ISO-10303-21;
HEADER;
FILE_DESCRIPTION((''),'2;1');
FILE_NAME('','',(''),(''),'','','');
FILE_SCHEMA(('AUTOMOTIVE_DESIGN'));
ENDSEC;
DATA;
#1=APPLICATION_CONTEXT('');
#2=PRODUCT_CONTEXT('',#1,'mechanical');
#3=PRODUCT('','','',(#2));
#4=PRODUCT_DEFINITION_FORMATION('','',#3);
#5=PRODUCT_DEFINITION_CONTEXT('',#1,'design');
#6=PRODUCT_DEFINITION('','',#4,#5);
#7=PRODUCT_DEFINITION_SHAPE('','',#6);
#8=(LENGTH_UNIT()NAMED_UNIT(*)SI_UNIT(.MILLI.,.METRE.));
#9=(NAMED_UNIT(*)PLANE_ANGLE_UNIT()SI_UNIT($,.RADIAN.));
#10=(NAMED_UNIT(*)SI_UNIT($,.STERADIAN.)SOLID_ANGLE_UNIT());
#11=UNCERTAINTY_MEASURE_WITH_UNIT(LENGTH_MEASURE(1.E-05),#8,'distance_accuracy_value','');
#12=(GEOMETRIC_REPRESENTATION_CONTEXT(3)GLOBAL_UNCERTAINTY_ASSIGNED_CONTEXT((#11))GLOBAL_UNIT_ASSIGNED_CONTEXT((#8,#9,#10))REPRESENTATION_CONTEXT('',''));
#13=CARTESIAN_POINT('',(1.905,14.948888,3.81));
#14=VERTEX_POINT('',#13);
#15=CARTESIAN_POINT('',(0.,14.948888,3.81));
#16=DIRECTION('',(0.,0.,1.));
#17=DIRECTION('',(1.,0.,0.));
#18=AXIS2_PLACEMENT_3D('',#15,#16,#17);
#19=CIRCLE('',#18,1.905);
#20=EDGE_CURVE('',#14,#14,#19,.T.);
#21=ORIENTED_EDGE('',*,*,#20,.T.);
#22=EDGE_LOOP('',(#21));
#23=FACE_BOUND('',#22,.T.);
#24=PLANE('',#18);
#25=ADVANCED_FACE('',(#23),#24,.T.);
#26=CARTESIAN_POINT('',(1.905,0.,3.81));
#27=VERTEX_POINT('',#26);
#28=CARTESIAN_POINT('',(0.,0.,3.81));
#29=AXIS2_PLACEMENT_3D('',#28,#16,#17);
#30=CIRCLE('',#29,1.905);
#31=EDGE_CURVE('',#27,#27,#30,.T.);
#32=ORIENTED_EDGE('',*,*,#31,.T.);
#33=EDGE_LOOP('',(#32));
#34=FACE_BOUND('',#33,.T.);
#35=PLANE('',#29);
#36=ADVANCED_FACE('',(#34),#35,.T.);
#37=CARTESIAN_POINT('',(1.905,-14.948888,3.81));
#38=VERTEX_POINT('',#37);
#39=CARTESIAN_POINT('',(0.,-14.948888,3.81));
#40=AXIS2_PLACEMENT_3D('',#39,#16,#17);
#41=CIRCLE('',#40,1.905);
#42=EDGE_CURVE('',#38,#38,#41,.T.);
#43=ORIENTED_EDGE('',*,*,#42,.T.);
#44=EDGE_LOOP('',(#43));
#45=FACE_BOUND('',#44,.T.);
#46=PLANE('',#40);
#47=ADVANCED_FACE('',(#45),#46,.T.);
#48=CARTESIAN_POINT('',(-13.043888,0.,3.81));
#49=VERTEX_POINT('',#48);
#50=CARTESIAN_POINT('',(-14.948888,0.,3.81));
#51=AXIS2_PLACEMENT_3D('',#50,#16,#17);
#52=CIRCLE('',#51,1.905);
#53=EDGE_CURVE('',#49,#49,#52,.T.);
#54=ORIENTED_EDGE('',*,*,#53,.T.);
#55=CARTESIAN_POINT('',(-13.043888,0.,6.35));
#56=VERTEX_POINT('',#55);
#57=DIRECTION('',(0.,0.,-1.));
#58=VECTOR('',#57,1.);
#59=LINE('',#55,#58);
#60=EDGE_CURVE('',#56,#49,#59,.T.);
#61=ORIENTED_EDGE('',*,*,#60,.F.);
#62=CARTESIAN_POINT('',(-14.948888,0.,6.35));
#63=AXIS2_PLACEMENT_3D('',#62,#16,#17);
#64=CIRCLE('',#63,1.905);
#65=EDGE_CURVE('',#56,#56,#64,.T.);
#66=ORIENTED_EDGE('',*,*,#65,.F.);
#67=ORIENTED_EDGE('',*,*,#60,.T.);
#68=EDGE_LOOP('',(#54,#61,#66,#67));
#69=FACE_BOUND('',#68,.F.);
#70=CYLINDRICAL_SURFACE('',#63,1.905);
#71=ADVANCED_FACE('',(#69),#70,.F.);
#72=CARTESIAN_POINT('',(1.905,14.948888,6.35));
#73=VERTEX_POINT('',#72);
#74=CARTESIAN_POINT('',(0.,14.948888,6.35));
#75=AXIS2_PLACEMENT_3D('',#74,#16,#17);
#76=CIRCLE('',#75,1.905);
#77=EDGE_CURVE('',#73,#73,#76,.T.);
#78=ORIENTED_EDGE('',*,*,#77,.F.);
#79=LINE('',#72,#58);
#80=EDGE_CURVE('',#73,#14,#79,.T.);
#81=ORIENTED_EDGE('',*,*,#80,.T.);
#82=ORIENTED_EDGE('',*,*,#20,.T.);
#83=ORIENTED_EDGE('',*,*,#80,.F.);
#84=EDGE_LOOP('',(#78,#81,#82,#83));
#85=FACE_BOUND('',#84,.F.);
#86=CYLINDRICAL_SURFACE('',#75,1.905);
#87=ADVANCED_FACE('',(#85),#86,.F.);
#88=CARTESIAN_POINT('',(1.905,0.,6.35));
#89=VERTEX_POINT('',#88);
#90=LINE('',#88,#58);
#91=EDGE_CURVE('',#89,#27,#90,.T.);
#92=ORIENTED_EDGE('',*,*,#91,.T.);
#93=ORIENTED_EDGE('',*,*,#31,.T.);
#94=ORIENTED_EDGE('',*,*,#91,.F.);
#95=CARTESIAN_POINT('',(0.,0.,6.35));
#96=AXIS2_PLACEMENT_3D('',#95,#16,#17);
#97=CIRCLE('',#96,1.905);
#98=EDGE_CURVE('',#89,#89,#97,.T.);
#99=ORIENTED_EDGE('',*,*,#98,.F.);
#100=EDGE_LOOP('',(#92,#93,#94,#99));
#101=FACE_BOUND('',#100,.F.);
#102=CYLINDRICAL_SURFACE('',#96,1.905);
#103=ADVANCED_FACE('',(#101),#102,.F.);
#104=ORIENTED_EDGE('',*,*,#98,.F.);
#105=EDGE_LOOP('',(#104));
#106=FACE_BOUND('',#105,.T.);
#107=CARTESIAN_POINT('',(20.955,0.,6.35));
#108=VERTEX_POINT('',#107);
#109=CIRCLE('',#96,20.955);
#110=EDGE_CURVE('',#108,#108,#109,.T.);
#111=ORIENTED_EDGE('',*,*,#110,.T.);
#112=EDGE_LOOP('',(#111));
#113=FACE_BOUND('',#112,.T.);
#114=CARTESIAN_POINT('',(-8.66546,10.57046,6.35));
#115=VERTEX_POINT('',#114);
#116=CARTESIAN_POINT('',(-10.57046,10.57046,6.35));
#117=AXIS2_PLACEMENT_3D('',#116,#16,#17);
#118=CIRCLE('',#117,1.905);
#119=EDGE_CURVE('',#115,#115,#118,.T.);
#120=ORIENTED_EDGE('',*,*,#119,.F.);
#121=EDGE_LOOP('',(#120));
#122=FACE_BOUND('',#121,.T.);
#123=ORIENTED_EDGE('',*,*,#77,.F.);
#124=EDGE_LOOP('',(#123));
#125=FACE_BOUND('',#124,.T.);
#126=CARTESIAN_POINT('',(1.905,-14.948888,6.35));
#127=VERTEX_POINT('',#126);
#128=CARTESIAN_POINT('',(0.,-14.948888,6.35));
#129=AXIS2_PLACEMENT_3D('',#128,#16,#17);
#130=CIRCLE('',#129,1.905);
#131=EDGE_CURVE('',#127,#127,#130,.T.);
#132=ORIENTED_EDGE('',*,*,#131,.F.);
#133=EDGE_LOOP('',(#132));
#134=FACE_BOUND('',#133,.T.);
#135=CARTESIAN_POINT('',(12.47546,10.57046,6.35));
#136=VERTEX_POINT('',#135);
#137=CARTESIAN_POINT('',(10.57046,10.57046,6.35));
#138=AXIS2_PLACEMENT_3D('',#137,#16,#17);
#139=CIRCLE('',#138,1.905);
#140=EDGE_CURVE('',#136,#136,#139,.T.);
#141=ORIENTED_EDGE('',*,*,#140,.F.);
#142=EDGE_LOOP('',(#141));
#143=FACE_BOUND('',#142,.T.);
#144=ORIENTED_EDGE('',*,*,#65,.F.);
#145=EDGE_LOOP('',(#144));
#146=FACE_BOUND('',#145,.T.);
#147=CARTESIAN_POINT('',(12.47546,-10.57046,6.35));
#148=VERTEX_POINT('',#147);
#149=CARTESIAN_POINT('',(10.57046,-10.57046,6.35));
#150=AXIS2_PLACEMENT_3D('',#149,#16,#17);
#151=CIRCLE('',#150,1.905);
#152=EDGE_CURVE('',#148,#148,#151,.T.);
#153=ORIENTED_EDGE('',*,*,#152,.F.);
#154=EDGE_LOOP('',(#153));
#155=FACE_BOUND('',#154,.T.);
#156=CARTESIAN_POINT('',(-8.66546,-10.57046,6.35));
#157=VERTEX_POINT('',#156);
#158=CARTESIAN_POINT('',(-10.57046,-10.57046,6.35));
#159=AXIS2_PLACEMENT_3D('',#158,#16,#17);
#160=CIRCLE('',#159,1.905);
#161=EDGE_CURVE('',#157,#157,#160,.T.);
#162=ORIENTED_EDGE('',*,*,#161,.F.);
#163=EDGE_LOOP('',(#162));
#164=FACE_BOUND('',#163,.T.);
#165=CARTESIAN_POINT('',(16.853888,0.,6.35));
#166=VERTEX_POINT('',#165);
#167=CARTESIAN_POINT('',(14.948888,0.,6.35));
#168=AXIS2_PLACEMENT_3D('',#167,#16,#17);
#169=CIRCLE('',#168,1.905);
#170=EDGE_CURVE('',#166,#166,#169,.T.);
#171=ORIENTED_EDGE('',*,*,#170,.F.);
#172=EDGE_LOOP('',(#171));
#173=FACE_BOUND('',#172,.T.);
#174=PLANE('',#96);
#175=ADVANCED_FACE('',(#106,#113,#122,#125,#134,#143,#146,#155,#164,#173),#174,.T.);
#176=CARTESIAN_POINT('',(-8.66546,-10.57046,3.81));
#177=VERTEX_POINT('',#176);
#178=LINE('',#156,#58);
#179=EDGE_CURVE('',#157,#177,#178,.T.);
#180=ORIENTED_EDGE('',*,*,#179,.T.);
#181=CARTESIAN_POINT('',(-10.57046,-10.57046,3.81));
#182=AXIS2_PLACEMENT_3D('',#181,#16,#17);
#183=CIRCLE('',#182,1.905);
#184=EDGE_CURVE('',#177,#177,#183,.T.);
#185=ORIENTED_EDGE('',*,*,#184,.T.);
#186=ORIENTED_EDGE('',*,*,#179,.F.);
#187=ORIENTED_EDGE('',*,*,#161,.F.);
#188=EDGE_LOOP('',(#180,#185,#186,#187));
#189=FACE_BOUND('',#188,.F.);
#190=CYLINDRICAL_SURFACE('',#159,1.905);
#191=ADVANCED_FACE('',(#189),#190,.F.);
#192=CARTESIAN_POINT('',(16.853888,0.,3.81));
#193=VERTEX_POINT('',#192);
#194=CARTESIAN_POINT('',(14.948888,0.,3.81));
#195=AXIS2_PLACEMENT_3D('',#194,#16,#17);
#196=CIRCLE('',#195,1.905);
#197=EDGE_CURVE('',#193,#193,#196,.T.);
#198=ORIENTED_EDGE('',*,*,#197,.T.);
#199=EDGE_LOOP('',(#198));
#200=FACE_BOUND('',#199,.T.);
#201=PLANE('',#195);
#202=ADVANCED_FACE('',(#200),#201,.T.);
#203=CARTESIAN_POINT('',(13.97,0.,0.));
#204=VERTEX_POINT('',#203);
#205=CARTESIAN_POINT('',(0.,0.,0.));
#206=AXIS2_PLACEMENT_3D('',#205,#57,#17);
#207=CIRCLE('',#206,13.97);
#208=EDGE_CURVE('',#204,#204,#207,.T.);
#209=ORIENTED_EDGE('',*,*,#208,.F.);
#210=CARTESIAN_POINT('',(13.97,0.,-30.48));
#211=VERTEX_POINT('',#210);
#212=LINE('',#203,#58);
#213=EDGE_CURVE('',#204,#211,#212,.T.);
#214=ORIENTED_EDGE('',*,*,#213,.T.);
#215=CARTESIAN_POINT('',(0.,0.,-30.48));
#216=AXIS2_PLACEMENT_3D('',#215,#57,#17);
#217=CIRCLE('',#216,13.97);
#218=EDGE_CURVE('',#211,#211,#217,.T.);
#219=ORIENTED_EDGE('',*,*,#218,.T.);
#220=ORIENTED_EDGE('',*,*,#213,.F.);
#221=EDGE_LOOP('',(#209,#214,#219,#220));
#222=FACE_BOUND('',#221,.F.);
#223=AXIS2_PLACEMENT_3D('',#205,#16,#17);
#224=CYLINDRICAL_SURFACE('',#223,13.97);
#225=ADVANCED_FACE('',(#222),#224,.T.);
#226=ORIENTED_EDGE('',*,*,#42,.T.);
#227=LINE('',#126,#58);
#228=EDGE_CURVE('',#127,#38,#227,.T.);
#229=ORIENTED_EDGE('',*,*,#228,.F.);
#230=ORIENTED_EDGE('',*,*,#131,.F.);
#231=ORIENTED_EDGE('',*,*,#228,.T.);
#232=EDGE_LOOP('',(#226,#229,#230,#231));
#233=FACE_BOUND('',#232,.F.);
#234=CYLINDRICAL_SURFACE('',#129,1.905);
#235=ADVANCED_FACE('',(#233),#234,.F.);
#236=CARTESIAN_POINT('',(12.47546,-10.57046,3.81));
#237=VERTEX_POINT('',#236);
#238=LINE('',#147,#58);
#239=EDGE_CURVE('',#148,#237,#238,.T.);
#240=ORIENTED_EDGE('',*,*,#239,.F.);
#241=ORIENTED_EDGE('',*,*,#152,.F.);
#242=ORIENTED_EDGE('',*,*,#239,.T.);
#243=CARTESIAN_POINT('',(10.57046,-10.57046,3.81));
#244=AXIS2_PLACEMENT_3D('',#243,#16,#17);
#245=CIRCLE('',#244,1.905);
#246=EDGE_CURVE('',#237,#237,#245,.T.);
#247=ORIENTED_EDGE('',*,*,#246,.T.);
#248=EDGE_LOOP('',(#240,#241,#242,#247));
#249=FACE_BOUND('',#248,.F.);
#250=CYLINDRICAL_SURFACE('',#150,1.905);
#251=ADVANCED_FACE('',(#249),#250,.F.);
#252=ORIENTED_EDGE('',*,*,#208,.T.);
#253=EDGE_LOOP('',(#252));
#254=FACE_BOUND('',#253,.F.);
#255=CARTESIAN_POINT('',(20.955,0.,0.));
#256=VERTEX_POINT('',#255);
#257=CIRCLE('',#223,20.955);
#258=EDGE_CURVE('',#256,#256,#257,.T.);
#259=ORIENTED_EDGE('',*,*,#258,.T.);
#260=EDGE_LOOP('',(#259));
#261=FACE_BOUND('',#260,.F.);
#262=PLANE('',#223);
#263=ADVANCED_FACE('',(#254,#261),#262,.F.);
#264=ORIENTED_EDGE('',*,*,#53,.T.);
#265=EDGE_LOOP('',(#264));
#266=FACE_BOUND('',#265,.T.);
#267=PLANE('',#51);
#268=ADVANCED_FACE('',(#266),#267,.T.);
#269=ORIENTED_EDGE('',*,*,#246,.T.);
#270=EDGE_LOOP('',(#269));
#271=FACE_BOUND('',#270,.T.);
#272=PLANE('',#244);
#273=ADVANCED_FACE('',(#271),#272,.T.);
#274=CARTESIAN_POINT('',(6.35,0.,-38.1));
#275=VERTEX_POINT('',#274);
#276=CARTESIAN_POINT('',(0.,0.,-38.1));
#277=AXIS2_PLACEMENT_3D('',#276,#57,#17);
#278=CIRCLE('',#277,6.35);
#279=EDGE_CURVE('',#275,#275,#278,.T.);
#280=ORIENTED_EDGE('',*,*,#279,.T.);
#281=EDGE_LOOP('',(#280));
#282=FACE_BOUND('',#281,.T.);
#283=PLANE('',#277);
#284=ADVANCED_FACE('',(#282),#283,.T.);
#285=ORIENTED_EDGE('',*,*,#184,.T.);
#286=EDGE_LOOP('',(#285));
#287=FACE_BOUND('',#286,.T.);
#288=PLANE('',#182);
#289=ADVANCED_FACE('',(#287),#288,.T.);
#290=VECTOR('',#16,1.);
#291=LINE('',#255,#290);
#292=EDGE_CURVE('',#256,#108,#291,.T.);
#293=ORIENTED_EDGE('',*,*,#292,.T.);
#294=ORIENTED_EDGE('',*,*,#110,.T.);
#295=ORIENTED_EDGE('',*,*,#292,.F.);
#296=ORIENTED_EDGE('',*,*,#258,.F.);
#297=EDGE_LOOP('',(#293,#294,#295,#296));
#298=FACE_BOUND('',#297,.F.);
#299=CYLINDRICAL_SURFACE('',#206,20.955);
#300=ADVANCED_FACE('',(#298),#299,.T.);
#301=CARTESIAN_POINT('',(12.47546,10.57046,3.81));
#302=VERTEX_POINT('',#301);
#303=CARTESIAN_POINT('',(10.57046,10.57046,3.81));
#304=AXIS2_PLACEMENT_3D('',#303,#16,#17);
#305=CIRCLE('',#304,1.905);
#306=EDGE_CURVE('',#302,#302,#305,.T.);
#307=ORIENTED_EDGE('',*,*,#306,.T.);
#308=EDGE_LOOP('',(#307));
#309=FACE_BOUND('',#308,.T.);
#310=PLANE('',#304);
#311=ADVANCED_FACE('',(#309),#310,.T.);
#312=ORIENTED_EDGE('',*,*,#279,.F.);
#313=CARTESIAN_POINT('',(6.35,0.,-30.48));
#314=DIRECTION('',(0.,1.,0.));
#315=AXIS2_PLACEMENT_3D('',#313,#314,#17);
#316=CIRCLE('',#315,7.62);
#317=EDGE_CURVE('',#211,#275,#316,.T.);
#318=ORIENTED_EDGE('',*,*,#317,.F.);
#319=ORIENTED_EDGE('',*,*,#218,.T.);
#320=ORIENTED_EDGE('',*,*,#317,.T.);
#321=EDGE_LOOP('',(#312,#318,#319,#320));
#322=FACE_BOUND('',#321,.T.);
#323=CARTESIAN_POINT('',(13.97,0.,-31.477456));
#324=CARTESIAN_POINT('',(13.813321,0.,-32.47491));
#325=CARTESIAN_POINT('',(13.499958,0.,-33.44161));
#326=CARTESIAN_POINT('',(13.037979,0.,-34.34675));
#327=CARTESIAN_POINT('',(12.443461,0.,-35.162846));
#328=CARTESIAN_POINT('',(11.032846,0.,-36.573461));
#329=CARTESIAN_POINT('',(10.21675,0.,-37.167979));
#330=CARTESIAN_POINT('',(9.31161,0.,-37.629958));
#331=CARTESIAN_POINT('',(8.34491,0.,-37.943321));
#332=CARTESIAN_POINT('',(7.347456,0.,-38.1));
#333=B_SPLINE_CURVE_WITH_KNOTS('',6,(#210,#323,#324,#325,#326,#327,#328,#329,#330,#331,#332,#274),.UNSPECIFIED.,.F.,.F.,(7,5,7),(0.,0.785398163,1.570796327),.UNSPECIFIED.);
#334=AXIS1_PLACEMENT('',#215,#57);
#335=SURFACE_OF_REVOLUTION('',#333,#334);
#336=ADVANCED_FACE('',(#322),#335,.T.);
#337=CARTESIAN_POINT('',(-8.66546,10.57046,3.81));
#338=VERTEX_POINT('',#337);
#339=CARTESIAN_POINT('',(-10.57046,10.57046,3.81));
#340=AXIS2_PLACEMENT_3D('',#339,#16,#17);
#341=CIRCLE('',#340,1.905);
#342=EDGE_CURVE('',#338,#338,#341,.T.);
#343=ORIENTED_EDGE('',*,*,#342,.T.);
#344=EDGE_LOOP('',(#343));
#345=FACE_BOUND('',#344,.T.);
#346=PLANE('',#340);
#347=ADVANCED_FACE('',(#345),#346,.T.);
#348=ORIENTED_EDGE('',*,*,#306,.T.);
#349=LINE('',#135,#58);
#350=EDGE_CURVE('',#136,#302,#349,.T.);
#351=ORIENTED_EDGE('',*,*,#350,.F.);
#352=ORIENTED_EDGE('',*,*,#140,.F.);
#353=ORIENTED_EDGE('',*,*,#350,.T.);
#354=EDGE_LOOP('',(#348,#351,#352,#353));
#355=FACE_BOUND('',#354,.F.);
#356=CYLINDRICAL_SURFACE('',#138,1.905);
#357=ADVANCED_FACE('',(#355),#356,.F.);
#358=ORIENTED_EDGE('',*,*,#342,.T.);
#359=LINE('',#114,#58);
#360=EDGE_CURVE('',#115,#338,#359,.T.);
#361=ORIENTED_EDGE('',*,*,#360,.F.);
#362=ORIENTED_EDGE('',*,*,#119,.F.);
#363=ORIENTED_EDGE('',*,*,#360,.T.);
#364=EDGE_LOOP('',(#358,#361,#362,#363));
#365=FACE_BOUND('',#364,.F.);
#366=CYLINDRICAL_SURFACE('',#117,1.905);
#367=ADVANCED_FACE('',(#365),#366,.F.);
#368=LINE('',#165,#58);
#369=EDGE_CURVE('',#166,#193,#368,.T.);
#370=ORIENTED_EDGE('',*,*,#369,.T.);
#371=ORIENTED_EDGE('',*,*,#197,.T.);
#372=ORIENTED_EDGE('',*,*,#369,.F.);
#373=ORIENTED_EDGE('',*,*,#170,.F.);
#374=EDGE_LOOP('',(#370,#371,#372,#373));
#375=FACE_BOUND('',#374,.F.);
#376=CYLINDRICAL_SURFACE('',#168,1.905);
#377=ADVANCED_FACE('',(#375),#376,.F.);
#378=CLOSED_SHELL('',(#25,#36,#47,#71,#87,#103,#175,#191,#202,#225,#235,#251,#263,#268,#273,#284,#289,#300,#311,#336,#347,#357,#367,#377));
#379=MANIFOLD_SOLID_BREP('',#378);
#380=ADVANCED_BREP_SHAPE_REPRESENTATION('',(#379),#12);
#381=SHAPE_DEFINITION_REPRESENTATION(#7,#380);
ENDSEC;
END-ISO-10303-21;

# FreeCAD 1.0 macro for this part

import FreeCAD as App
import Part
import Sketcher
Q = App.Units.Quantity


def edges_at(feature, points):
    """Names of the edges that pass closest to the given points."""
    edges = feature.Shape.Edges
    near = lambda p: min(range(len(edges)), key=lambda i: edges[i].distToShape(Part.Vertex(*p))[0])
    return sorted({f"Edge{near(p) + 1}" for p in points})

doc = App.newDocument("Part")
body = doc.addObject("PartDesign::Body", "Body")

sketch1 = body.newObject("Sketcher::SketchObject", "Sketch")
sketch1.AttachmentSupport = (doc.getObject("XY_Plane"), [""])
sketch1.MapMode = "FlatFace"
sketch1.addGeometry(Part.Circle(App.Vector(0, 0, 0), App.Vector(0, 0, 1), 21), False)
sketch1.addConstraint(Sketcher.Constraint("Coincident", 0, 3, -1, 1))
sketch1.addConstraint(Sketcher.Constraint("Diameter", 0, Q("1.65 in")))
pad1 = body.newObject("PartDesign::Pad", "Pad")
pad1.Profile = sketch1
pad1.Length = Q("0.25 in")

sketch2 = body.newObject("Sketcher::SketchObject", "Sketch001")
sketch2.AttachmentSupport = (doc.getObject("XY_Plane"), [""])
sketch2.MapMode = "FlatFace"
sketch2.addGeometry(Part.Circle(App.Vector(0, 0, 0), App.Vector(0, 0, 1), 14), False)
sketch2.addConstraint(Sketcher.Constraint("Coincident", 0, 3, -1, 1))
sketch2.addConstraint(Sketcher.Constraint("Diameter", 0, Q("1.1 in")))
pad2 = body.newObject("PartDesign::Pad", "Pad001")
pad2.Profile = sketch2
pad2.Length = Q("1.5 in")
pad2.Reversed = True
doc.recompute()

fillet = body.newObject("PartDesign::Fillet", "Fillet")
fillet.Base = (pad2, edges_at(pad2, [(-13.97, 0, -38.1)]))
fillet.Radius = Q("0.3 in")

sketch3 = body.newObject("Sketcher::SketchObject", "Sketch002")
sketch3.AttachmentSupport = (doc.getObject("XY_Plane"), [""])
sketch3.MapMode = "FlatFace"
sketch3.AttachmentOffset = App.Placement(App.Vector(0, 0, 0.25 * 25.4), App.Rotation())
sketch3.addGeometry(Part.Circle(App.Vector(10.6, -10.6, 0), App.Vector(0, 0, 1), 1.9), False)
sketch3.addConstraint(Sketcher.Constraint("Diameter", 0, Q("0.15 in")))
sketch3.addConstraint(Sketcher.Constraint("DistanceX", -1, 1, 0, 3, Q("10.57046 mm")))
sketch3.addConstraint(Sketcher.Constraint("DistanceY", 0, 3, -1, 1, Q("10.57046 mm")))
pocket1 = body.newObject("PartDesign::Pocket", "Pocket")
pocket1.Profile = sketch3
pocket1.Length = Q("0.1 in")

sketch4 = body.newObject("Sketcher::SketchObject", "Sketch003")
sketch4.AttachmentSupport = (doc.getObject("XY_Plane"), [""])
sketch4.MapMode = "FlatFace"
sketch4.AttachmentOffset = App.Placement(App.Vector(0, 0, 0.25 * 25.4), App.Rotation())
sketch4.addGeometry(Part.Circle(App.Vector(-10.6, -10.6, 0), App.Vector(0, 0, 1), 1.9), False)
sketch4.addGeometry(Part.Circle(App.Vector(10.6, 10.6, 0), App.Vector(0, 0, 1), 1.9), False)
sketch4.addGeometry(Part.Circle(App.Vector(-10.6, 10.6, 0), App.Vector(0, 0, 1), 1.9), False)
sketch4.addGeometry(Part.Circle(App.Vector(0, 0, 0), App.Vector(0, 0, 1), 1.9), False)
sketch4.addGeometry(Part.Circle(App.Vector(0, 14.9, 0), App.Vector(0, 0, 1), 1.9), False)
sketch4.addGeometry(Part.Circle(App.Vector(14.9, 0, 0), App.Vector(0, 0, 1), 1.9), False)
sketch4.addGeometry(Part.Circle(App.Vector(0, -14.9, 0), App.Vector(0, 0, 1), 1.9), False)
sketch4.addGeometry(Part.Circle(App.Vector(10.6, -10.6, 0), App.Vector(0, 0, 1), 1.9), False)
sketch4.addGeometry(Part.Circle(App.Vector(-14.9, 0, 0), App.Vector(0, 0, 1), 1.9), False)
sketch4.addConstraint(Sketcher.Constraint("Coincident", 3, 3, -1, 1))
sketch4.addConstraint(Sketcher.Constraint("Equal", 0, 1))
sketch4.addConstraint(Sketcher.Constraint("Equal", 1, 2))
sketch4.addConstraint(Sketcher.Constraint("Equal", 2, 3))
sketch4.addConstraint(Sketcher.Constraint("Equal", 3, 4))
sketch4.addConstraint(Sketcher.Constraint("Equal", 4, 5))
sketch4.addConstraint(Sketcher.Constraint("Equal", 5, 6))
sketch4.addConstraint(Sketcher.Constraint("Equal", 6, 7))
sketch4.addConstraint(Sketcher.Constraint("Equal", 7, 8))
sketch4.addConstraint(Sketcher.Constraint("Symmetric", 0, 3, 1, 3, -1, 1))
sketch4.addConstraint(Sketcher.Constraint("Symmetric", 4, 3, 6, 3, -1, 1))
sketch4.addConstraint(Sketcher.Constraint("Symmetric", 2, 3, 7, 3, -1, 1))
sketch4.addConstraint(Sketcher.Constraint("Symmetric", 5, 3, 8, 3, -1, 1))
sketch4.addConstraint(Sketcher.Constraint("Symmetric", 1, 3, 2, 3, -2))
sketch4.addConstraint(Sketcher.Constraint("PointOnObject", 4, 3, -2))
sketch4.addConstraint(Sketcher.Constraint("PointOnObject", 5, 3, -1))
sketch4.addConstraint(Sketcher.Constraint("Diameter", 0, Q("0.15 in")))
sketch4.addConstraint(Sketcher.Constraint("DistanceX", 0, 3, -1, 1, Q("10.57046 mm")))
sketch4.addConstraint(Sketcher.Constraint("DistanceY", 0, 3, -1, 1, Q("10.57046 mm")))
sketch4.addConstraint(Sketcher.Constraint("DistanceY", 0, 3, 4, 3, Q("25.519348 mm")))
sketch4.addConstraint(Sketcher.Constraint("DistanceX", 0, 3, 5, 3, Q("25.519348 mm")))
pocket2 = body.newObject("PartDesign::Pocket", "Pocket001")
pocket2.Profile = sketch4
pocket2.Length = Q("0.1 in")

doc.recompute()
